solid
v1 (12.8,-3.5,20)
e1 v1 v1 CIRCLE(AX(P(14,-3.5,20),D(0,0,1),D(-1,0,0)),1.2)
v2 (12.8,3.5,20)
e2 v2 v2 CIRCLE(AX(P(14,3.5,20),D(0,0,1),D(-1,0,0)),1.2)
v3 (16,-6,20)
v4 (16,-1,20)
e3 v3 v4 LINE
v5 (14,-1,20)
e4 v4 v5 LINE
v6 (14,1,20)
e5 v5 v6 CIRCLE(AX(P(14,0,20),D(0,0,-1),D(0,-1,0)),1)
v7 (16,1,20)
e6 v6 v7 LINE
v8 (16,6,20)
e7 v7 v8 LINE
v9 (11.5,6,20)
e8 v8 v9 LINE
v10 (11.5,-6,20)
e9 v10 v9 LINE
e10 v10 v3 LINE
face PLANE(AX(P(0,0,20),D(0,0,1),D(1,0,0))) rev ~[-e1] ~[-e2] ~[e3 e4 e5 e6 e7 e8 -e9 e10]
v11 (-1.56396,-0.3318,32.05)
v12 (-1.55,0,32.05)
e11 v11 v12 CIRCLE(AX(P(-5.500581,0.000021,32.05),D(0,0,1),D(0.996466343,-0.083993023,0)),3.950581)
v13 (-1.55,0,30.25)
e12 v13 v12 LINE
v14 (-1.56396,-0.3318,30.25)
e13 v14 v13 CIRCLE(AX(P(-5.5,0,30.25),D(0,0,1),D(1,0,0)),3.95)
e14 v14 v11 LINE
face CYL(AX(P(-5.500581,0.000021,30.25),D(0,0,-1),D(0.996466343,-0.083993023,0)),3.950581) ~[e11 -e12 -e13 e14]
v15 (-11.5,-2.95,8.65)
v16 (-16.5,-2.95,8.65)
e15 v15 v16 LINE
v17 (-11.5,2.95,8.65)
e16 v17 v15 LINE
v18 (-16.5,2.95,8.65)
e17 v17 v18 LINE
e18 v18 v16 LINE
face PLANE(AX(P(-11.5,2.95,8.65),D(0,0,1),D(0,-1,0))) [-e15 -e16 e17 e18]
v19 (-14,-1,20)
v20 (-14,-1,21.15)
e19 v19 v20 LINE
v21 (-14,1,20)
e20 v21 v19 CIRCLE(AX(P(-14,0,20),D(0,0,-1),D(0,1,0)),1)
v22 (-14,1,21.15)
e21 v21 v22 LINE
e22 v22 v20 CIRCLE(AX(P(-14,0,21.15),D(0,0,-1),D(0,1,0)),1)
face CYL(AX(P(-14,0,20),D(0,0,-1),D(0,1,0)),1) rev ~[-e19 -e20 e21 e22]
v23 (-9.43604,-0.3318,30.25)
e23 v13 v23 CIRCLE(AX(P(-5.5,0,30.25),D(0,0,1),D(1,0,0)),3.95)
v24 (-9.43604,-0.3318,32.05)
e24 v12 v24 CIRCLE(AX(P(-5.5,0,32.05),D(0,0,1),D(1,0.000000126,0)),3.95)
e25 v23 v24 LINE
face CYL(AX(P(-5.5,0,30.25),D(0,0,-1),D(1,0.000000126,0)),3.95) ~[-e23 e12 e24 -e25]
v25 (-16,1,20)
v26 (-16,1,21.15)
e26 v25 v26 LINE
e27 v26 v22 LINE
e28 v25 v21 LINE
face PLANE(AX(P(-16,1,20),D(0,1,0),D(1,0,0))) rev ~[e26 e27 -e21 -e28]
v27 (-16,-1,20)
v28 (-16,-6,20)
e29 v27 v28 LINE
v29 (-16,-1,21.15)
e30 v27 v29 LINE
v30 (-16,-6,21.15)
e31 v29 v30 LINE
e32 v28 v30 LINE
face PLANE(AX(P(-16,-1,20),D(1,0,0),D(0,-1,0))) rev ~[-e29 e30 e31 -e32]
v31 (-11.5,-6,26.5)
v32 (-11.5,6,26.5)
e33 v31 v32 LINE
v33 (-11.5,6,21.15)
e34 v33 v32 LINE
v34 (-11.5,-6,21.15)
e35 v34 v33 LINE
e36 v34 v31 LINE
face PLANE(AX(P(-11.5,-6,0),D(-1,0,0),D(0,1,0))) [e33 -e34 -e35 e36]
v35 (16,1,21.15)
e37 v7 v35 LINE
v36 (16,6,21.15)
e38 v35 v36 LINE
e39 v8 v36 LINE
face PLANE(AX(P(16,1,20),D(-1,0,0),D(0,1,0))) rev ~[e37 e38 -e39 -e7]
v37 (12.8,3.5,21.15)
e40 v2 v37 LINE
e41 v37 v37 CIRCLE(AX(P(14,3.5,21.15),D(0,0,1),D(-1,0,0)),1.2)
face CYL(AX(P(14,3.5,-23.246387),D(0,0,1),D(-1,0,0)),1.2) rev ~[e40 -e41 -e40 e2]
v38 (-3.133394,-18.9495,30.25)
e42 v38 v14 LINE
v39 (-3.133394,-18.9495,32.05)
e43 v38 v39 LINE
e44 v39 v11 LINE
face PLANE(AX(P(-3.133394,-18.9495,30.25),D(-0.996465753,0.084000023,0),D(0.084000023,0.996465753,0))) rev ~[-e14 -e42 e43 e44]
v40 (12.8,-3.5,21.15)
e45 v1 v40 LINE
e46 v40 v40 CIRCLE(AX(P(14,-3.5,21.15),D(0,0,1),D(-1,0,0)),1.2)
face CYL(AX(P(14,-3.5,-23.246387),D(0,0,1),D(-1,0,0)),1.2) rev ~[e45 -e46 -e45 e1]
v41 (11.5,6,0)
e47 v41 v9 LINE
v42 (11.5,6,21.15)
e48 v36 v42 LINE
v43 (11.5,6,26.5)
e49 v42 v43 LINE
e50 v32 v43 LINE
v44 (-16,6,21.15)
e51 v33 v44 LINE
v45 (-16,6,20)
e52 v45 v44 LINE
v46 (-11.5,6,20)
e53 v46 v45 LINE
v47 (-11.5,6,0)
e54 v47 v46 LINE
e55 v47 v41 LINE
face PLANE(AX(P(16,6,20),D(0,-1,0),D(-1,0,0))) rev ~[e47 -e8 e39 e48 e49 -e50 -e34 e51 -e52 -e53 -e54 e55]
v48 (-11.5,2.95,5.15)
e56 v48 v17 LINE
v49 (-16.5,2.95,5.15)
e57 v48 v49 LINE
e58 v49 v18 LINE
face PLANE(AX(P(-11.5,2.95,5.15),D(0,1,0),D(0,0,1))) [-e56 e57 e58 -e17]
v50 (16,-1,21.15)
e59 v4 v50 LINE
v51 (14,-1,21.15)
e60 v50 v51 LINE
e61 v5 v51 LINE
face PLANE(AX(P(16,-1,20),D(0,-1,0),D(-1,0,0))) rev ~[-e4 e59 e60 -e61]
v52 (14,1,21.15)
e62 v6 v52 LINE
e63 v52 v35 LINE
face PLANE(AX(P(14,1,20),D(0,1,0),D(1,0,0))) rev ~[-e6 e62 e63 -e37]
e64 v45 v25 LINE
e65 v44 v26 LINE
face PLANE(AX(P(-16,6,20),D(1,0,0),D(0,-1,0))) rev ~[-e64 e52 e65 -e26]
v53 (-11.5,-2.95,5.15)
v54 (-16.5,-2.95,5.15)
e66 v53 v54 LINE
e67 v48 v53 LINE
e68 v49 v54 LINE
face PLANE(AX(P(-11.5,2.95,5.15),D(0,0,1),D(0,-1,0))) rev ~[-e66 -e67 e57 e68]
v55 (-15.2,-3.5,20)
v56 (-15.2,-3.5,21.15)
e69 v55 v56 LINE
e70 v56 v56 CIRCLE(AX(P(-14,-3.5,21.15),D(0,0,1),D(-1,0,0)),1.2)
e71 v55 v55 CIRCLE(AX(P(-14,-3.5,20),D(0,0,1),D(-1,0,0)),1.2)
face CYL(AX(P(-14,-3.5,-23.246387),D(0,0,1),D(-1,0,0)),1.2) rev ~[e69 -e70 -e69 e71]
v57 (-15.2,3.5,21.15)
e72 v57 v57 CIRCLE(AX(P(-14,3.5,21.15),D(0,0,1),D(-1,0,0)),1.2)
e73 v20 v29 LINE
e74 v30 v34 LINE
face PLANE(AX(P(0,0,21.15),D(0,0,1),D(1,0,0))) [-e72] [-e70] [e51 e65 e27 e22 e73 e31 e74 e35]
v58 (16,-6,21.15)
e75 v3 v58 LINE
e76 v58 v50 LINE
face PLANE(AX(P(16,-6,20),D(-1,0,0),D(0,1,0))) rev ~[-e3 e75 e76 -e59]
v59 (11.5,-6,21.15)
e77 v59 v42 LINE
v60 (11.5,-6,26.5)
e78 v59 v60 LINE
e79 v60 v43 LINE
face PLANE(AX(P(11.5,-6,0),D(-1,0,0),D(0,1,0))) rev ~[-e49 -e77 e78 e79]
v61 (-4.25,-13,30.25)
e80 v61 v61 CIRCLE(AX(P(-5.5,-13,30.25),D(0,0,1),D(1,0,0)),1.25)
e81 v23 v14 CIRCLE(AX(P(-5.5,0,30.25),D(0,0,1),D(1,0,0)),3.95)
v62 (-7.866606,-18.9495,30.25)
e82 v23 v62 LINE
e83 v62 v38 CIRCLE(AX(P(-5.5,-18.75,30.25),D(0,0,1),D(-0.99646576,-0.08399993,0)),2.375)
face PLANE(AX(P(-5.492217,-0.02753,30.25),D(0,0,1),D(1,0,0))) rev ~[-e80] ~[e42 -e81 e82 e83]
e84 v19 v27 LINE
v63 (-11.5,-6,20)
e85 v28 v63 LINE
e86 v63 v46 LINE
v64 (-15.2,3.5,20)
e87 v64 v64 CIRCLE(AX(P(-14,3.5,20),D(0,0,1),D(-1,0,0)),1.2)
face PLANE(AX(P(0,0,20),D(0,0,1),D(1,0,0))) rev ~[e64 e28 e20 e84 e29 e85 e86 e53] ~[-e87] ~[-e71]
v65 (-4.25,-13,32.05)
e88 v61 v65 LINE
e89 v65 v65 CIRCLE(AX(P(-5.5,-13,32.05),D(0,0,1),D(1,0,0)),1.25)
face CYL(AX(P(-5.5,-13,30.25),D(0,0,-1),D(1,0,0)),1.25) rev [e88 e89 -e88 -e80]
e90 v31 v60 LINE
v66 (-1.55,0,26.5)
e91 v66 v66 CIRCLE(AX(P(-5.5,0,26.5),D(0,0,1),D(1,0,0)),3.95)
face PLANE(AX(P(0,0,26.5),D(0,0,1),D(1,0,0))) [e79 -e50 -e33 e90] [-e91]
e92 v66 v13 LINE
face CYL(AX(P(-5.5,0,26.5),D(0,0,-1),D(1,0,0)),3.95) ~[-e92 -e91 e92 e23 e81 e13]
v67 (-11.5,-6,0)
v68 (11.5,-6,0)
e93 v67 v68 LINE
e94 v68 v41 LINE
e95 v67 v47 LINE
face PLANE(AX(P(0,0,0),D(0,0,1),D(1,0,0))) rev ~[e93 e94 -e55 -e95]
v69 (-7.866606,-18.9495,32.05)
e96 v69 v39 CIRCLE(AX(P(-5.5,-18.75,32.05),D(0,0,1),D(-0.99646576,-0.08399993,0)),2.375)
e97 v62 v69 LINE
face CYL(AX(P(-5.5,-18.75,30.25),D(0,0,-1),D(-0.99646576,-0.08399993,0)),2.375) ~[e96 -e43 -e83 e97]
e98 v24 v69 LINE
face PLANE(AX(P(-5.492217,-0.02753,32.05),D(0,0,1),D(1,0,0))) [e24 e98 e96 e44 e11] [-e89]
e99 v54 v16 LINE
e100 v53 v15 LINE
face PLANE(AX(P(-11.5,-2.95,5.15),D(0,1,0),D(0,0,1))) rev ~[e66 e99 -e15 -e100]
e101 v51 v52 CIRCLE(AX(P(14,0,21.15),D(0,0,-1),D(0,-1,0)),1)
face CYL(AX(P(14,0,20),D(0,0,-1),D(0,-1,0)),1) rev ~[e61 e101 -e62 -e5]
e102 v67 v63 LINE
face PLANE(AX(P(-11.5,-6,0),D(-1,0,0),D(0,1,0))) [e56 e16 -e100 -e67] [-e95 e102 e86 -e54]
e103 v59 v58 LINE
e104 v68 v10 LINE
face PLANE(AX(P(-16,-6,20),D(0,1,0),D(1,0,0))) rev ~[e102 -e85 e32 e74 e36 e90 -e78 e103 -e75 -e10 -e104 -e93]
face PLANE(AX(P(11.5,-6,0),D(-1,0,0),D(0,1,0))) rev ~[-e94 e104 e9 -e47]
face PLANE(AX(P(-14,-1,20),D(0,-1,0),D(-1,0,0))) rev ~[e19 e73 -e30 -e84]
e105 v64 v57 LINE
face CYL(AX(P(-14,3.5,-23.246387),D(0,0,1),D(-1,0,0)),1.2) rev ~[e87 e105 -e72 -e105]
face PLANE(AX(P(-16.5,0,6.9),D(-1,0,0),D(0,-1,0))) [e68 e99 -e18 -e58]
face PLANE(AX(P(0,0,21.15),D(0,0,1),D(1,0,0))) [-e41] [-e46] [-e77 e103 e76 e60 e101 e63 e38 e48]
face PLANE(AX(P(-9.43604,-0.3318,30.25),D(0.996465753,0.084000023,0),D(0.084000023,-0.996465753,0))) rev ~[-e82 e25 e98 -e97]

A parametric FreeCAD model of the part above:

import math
import FreeCAD as App
import Part
import Sketcher
Q = App.Units.Quantity


def add_polygon(sketch, points):
    """Adds a closed chain of lines whose ends are joined by coincident constraints."""
    first, n = sketch.GeometryCount, len(points)
    for a, b in zip(points, points[1:] + points[:1]):
        sketch.addGeometry(Part.LineSegment(App.Vector(*a, 0), App.Vector(*b, 0)), False)
    for i in range(n):
        sketch.addConstraint(Sketcher.Constraint("Coincident", first + i, 2, first + (i + 1) % n, 1))

doc = App.newDocument("Part")
body = doc.addObject("PartDesign::Body", "Body")

# Sketch on XY plane
sketch1 = doc.addObject("Sketcher::SketchObject", "Sketch")
body.addObject(sketch1)
sketch1.AttachmentSupport = (doc.XY_Plane, [""])
sketch1.MapMode = "FlatFace"
add_polygon(sketch1, [(-12, 6), (-12, -6), (12, -6), (12, 6)])  # lines 0-3
sketch1.addConstraint([
    Sketcher.Constraint("Vertical", 0),
    Sketcher.Constraint("Horizontal", 1),
    Sketcher.Constraint("Vertical", 2),
    Sketcher.Constraint("Horizontal", 3),
    Sketcher.Constraint("Symmetric", 0, 2, 2, 2, -1, 1),
    Sketcher.Constraint("DistanceX", 1, 1, 1, 2, Q("23 mm")),
    Sketcher.Constraint("DistanceY", 0, 2, 0, 1, Q("12 mm")),
])
pad1 = doc.addObject("PartDesign::Pad", "Pad")
body.addObject(pad1)
pad1.Profile = sketch1
pad1.Length = 26.5

# Sketch on XY plane
sketch2 = doc.addObject("Sketcher::SketchObject", "Sketch001")
body.addObject(sketch2)
sketch2.AttachmentSupport = (doc.XY_Plane, [""])
sketch2.MapMode = "FlatFace"
sketch2.AttachmentOffset = App.Placement(App.Vector(0, 0, 20), App.Rotation())
sketch2.addGeometry([
    Part.LineSegment(App.Vector(16, 1, 0), App.Vector(16, 6, 0)),  # 0
    Part.LineSegment(App.Vector(16, 6, 0), App.Vector(-16, 6, 0)),  # 1
    Part.LineSegment(App.Vector(-16, 6, 0), App.Vector(-16, 1, 0)),  # 2
    Part.LineSegment(App.Vector(-16, 1, 0), App.Vector(-14, 1, 0)),  # 3
    Part.ArcOfCircle(Part.Circle(App.Vector(-14, 0, 0), App.Vector(0, 0, 1), 1), math.radians(-90), math.radians(90)),  # 4
    Part.LineSegment(App.Vector(-14, -1, 0), App.Vector(-16, -1, 0)),  # 5
    Part.LineSegment(App.Vector(-16, -1, 0), App.Vector(-16, -6, 0)),  # 6
    Part.LineSegment(App.Vector(-16, -6, 0), App.Vector(16, -6, 0)),  # 7
    Part.LineSegment(App.Vector(16, -6, 0), App.Vector(16, -1, 0)),  # 8
    Part.LineSegment(App.Vector(16, -1, 0), App.Vector(14, -1, 0)),  # 9
    Part.ArcOfCircle(Part.Circle(App.Vector(14, 0, 0), App.Vector(0, 0, 1), 1), math.radians(90), math.radians(270)),  # 10
    Part.LineSegment(App.Vector(14, 1, 0), App.Vector(16, 1, 0)),  # 11
], False)
sketch2.addConstraint([
    Sketcher.Constraint("Coincident", 0, 2, 1, 1),
    Sketcher.Constraint("Coincident", 1, 2, 2, 1),
    Sketcher.Constraint("Coincident", 2, 2, 3, 1),
    Sketcher.Constraint("Tangent", 3, 2, 4, 2),
    Sketcher.Constraint("Tangent", 4, 1, 5, 1),
    Sketcher.Constraint("Coincident", 5, 2, 6, 1),
    Sketcher.Constraint("Coincident", 6, 2, 7, 1),
    Sketcher.Constraint("Coincident", 7, 2, 8, 1),
    Sketcher.Constraint("Coincident", 8, 2, 9, 1),
    Sketcher.Constraint("Tangent", 9, 2, 10, 2),
    Sketcher.Constraint("Tangent", 10, 1, 11, 1),
    Sketcher.Constraint("Coincident", 11, 2, 0, 1),
    Sketcher.Constraint("Vertical", 0),
    Sketcher.Constraint("Horizontal", 1),
    Sketcher.Constraint("Vertical", 2),
    Sketcher.Constraint("Horizontal", 3),
    Sketcher.Constraint("Horizontal", 5),
    Sketcher.Constraint("Vertical", 6),
    Sketcher.Constraint("Horizontal", 7),
    Sketcher.Constraint("Vertical", 8),
    Sketcher.Constraint("Horizontal", 9),
    Sketcher.Constraint("Horizontal", 11),
    Sketcher.Constraint("Equal", 4, 10),
    Sketcher.Constraint("Symmetric", 4, 3, 10, 3, -1, 1),
    Sketcher.Constraint("Symmetric", 0, 2, 6, 2, -1, 1),
    Sketcher.Constraint("Symmetric", 5, 2, 8, 2, -2),
    Sketcher.Constraint("Vertical", 2, 2, 5, 2),
    Sketcher.Constraint("Radius", 4, Q("1 mm")),
    Sketcher.Constraint("DistanceX", 1, 2, 1, 1, Q("32 mm")),
    Sketcher.Constraint("DistanceX", 3, 1, 3, 2, Q("2 mm")),
    Sketcher.Constraint("DistanceY", 0, 1, 0, 2, Q("5 mm")),
])
pad2 = doc.addObject("PartDesign::Pad", "Pad001")
body.addObject(pad2)
pad2.Profile = sketch2
pad2.Length = 1.15

# Sketch on XY plane
sketch3 = doc.addObject("Sketcher::SketchObject", "Sketch002")
body.addObject(sketch3)
sketch3.AttachmentSupport = (doc.XY_Plane, [""])
sketch3.MapMode = "FlatFace"
sketch3.AttachmentOffset = App.Placement(App.Vector(0, 0, 20), App.Rotation())
sketch3.addGeometry([
    Part.Circle(App.Vector(-14, -3.5, 0), App.Vector(0, 0, 1), 1.2),
    Part.Circle(App.Vector(-14, 3.5, 0), App.Vector(0, 0, 1), 1.2),
    Part.Circle(App.Vector(14, -3.5, 0), App.Vector(0, 0, 1), 1.2),
    Part.Circle(App.Vector(14, 3.5, 0), App.Vector(0, 0, 1), 1.2),
], False)
sketch3.addConstraint([
    Sketcher.Constraint("Equal", 0, 1),
    Sketcher.Constraint("Equal", 1, 2),
    Sketcher.Constraint("Equal", 2, 3),
    Sketcher.Constraint("Symmetric", 1, 3, 2, 3, -1, 1),
    Sketcher.Constraint("Symmetric", 0, 3, 3, 3, -1, 1),
    Sketcher.Constraint("Symmetric", 0, 3, 2, 3, -2),
    Sketcher.Constraint("Diameter", 0, Q("2.4 mm")),
    Sketcher.Constraint("DistanceX", 0, 3, -1, 1, Q("14 mm")),
    Sketcher.Constraint("DistanceY", 0, 3, 1, 3, Q("7 mm")),
])
doc.recompute()
hole = doc.addObject("PartDesign::Hole", "Hole")
body.addObject(hole)
hole.Profile = sketch3
hole.ThreadType = "None"
hole.Diameter = 2.4
hole.DepthType = "ThroughAll"
hole.Reversed = True

# Sketch on XY plane
sketch4 = doc.addObject("Sketcher::SketchObject", "Sketch003")
body.addObject(sketch4)
sketch4.AttachmentSupport = (doc.XY_Plane, [""])
sketch4.MapMode = "FlatFace"
sketch4.AttachmentOffset = App.Placement(App.Vector(0, 0, 26.5), App.Rotation())
sketch4.addGeometry(Part.Circle(App.Vector(-5.5, 0, 0), App.Vector(0, 0, 1), 4), False)
sketch4.addConstraint([
    Sketcher.Constraint("PointOnObject", 0, 3, -1),
    Sketcher.Constraint("Diameter", 0, Q("7.9 mm")),
    Sketcher.Constraint("DistanceX", 0, 3, -1, 1, Q("5.5 mm")),
])
pad3 = doc.addObject("PartDesign::Pad", "Pad002")
body.addObject(pad3)
pad3.Profile = sketch4
pad3.Length = 3.75

# Sketch on XY plane
sketch5 = doc.addObject("Sketcher::SketchObject", "Sketch004")
body.addObject(sketch5)
sketch5.AttachmentSupport = (doc.XY_Plane, [""])
sketch5.MapMode = "FlatFace"
sketch5.AttachmentOffset = App.Placement(App.Vector(0, 0, 30.25), App.Rotation())
sketch5.addGeometry([
    Part.ArcOfCircle(Part.Circle(App.Vector(-5.5, 0, 0), App.Vector(0, 0, 1), 3.95), math.radians(-4.82), math.radians(0)),  # 0
    Part.ArcOfCircle(Part.Circle(App.Vector(-5.5, 0, 0), App.Vector(0, 0, 1), 3.95), math.radians(0), math.radians(185)),  # 1
    Part.LineSegment(App.Vector(-9.44, -0.33, 0), App.Vector(-7.87, -18.95, 0)),  # 2
    Part.ArcOfCircle(Part.Circle(App.Vector(-5.5, -18.75, 0), App.Vector(0, 0, 1), 2.37), math.radians(-175), math.radians(-5)),  # 3
    Part.LineSegment(App.Vector(-3.13, -18.95, 0), App.Vector(-1.56, -0.33, 0)),  # 4
    Part.Circle(App.Vector(-5.5, -13, 0), App.Vector(0, 0, 1), 1.25),  # 5
], False)
sketch5.addConstraint([
    Sketcher.Constraint("Coincident", 0, 2, 1, 1),
    Sketcher.Constraint("Tangent", 1, 2, 2, 1),
    Sketcher.Constraint("Tangent", 2, 2, 3, 1),
    Sketcher.Constraint("Tangent", 3, 2, 4, 1),
    Sketcher.Constraint("Coincident", 4, 2, 0, 1),
    Sketcher.Constraint("PointOnObject", 1, 3, -1),
    Sketcher.Constraint("PointOnObject", 0, 2, -1),
    Sketcher.Constraint("Horizontal", 2, 2, 3, 2),
    Sketcher.Constraint("Horizontal", 1, 2, 4, 2),
    Sketcher.Constraint("Vertical", 1, 3, 3, 3),
    Sketcher.Constraint("Vertical", 3, 3, 5, 3),
    Sketcher.Constraint("Diameter", 5, Q("2.5 mm")),
    Sketcher.Constraint("Radius", 1, Q("3.95 mm")),
    Sketcher.Constraint("DistanceY", 5, 3, -1, 1, Q("13 mm")),
    Sketcher.Constraint("Radius", 3, Q("2.375 mm")),
    Sketcher.Constraint("DistanceX", 1, 3, -1, 1, Q("5.5 mm")),
    Sketcher.Constraint("DistanceY", 3, 3, -1, 1, Q("18.75 mm")),
    Sketcher.Constraint("Radius", 0, Q("3.950581 mm")),
])
pad4 = doc.addObject("PartDesign::Pad", "Pad003")
body.addObject(pad4)
pad4.Profile = sketch5
pad4.Length = 1.8

# Sketch on YZ plane
sketch6 = doc.addObject("Sketcher::SketchObject", "Sketch005")
body.addObject(sketch6)
sketch6.AttachmentSupport = (doc.YZ_Plane, [""])
sketch6.MapMode = "FlatFace"
sketch6.AttachmentOffset = App.Placement(App.Vector(0, 0, -11.5), App.Rotation())
add_polygon(sketch6, [(3, 8.7), (3, 5.2), (-3, 5.2), (-3, 8.7)])  # lines 0-3
sketch6.addConstraint([
    Sketcher.Constraint("Vertical", 0),
    Sketcher.Constraint("Horizontal", 1),
    Sketcher.Constraint("Vertical", 2),
    Sketcher.Constraint("Horizontal", 3),
    Sketcher.Constraint("DistanceX", 1, 2, 1, 1, Q("5.9 mm")),
    Sketcher.Constraint("DistanceY", 0, 2, 0, 1, Q("3.5 mm")),
    Sketcher.Constraint("DistanceX", -1, 1, 0, 2, Q("2.95 mm")),
    Sketcher.Constraint("DistanceY", -1, 1, 0, 2, Q("5.15 mm")),
])
pad5 = doc.addObject("PartDesign::Pad", "Pad004")
body.addObject(pad5)
pad5.Profile = sketch6
pad5.Length = 5
pad5.Reversed = True

doc.recompute()
